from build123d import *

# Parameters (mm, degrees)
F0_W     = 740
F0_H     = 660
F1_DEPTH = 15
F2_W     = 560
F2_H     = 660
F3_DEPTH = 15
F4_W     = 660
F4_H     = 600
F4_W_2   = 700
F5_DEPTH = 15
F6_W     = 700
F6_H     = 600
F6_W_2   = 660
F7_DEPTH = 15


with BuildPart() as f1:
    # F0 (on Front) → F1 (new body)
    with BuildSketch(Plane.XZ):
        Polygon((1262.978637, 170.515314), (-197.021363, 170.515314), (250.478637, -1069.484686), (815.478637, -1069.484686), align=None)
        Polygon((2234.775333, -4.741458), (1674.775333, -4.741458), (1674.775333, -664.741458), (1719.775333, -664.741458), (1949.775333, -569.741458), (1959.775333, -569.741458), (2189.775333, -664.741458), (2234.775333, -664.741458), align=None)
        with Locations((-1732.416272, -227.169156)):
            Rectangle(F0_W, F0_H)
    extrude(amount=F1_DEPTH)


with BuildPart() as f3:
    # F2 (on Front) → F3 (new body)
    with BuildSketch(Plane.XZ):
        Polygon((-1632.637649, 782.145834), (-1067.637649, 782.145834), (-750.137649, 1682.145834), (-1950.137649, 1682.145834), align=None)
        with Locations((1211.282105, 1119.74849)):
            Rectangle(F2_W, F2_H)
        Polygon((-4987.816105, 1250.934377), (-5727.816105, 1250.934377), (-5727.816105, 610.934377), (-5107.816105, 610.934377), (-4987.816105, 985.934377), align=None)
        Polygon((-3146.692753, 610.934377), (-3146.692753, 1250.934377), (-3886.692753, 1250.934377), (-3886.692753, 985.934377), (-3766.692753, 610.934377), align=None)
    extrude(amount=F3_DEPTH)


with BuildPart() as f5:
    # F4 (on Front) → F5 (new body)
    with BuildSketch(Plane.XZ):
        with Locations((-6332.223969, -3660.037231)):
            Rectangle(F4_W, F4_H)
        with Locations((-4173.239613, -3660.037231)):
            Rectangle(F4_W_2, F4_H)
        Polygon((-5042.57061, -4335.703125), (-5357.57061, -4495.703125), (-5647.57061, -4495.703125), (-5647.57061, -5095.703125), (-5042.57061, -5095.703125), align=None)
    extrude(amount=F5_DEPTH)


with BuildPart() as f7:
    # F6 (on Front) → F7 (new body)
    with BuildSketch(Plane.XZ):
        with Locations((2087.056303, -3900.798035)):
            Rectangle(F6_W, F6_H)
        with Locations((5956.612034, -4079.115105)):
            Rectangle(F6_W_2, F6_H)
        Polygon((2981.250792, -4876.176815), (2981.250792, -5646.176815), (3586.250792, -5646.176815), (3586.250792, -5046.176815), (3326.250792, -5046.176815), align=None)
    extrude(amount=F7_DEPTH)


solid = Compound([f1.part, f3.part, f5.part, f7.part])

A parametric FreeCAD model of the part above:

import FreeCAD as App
import Part
import Sketcher
from FreeCAD import Vector

doc = App.newDocument("Part")
params = doc.addObject("Spreadsheet::Sheet", "Params")
for row, (alias, value) in enumerate([
    ("sketch1_width", "1460 mm"),
    ("sketch1_width2", "565 mm"),
    ("sketch1_width3", "560 mm"),
    ("sketch1_width4", "45 mm"),
    ("sketch1_width5", "10 mm"),
    ("pad1_length", "15 mm"),
    ("sketch2_width", "565 mm"),
    ("sketch2_width2", "1200 mm"),
    ("sketch2_width3", "560 mm"),
    ("sketch2_width4", "740 mm"),
    ("sketch2_width5", "620 mm"),
    ("pad2_length", "15 mm"),
    ("sketch3_width", "660 mm"),
    ("sketch3_width2", "700 mm"),
    ("sketch3_width3", "290 mm"),
    ("sketch3_width4", "605 mm"),
    ("sketch3_height", "600 mm"),
    ("pad3_length", "15 mm"),
    ("sketch4_width", "700 mm"),
    ("sketch4_width2", "660 mm"),
    ("sketch4_width3", "605 mm"),
    ("sketch4_width4", "260 mm"),
    ("sketch4_height", "600 mm"),
    ("pad4_length", "15 mm"),
], start=1):
    params.set(f"A{row}", alias)
    params.set(f"B{row}", "=" + value)
    params.setAlias(f"B{row}", alias)

body = doc.addObject("PartDesign::Body", "Body")
body.AllowCompound = True

# Sketch on XZ plane
sketch1 = doc.addObject("Sketcher::SketchObject", "Sketch")
body.addObject(sketch1)
sketch1.AttachmentSupport = (doc.XZ_Plane, [""])
sketch1.MapMode = "FlatFace"
sketch1.addGeometry([
    Part.LineSegment(Vector(1263, 171, 0), Vector(-197, 171, 0)),  # 0
    Part.LineSegment(Vector(-197, 171, 0), Vector(250, -1069, 0)),  # 1
    Part.LineSegment(Vector(250, -1069, 0), Vector(815, -1069, 0)),  # 2
    Part.LineSegment(Vector(815, -1069, 0), Vector(1263, 171, 0)),  # 3
    Part.LineSegment(Vector(2235, -5, 0), Vector(1675, -5, 0)),  # 4
    Part.LineSegment(Vector(1675, -5, 0), Vector(1675, -665, 0)),  # 5
    Part.LineSegment(Vector(1675, -665, 0), Vector(1720, -665, 0)),  # 6
    Part.LineSegment(Vector(1720, -665, 0), Vector(1950, -570, 0)),  # 7
    Part.LineSegment(Vector(1950, -570, 0), Vector(1960, -570, 0)),  # 8
    Part.LineSegment(Vector(1960, -570, 0), Vector(2190, -665, 0)),  # 9
    Part.LineSegment(Vector(2190, -665, 0), Vector(2235, -665, 0)),  # 10
    Part.LineSegment(Vector(2235, -665, 0), Vector(2235, -5, 0)),  # 11
    Part.LineSegment(Vector(-2102, 103, 0), Vector(-2102, -557, 0)),  # 12
    Part.LineSegment(Vector(-2102, -557, 0), Vector(-1362, -557, 0)),  # 13
    Part.LineSegment(Vector(-1362, -557, 0), Vector(-1362, 103, 0)),  # 14
    Part.LineSegment(Vector(-1362, 103, 0), Vector(-2102, 103, 0)),  # 15
], False)
sketch1.addConstraint([
    Sketcher.Constraint("Coincident", 0, 2, 1, 1),
    Sketcher.Constraint("Coincident", 1, 2, 2, 1),
    Sketcher.Constraint("Coincident", 2, 2, 3, 1),
    Sketcher.Constraint("Coincident", 3, 2, 0, 1),
    Sketcher.Constraint("Coincident", 4, 2, 5, 1),
    Sketcher.Constraint("Coincident", 5, 2, 6, 1),
    Sketcher.Constraint("Coincident", 6, 2, 7, 1),
    Sketcher.Constraint("Coincident", 7, 2, 8, 1),
    Sketcher.Constraint("Coincident", 8, 2, 9, 1),
    Sketcher.Constraint("Coincident", 9, 2, 10, 1),
    Sketcher.Constraint("Coincident", 10, 2, 11, 1),
    Sketcher.Constraint("Coincident", 11, 2, 4, 1),
    Sketcher.Constraint("Coincident", 12, 2, 13, 1),
    Sketcher.Constraint("Coincident", 13, 2, 14, 1),
    Sketcher.Constraint("Coincident", 14, 2, 15, 1),
    Sketcher.Constraint("Coincident", 15, 2, 12, 1),
    Sketcher.Constraint("Horizontal", 0),
    Sketcher.Constraint("Horizontal", 2),
    Sketcher.Constraint("Horizontal", 4),
    Sketcher.Constraint("Vertical", 5),
    Sketcher.Constraint("Horizontal", 6),
    Sketcher.Constraint("Horizontal", 8),
    Sketcher.Constraint("Horizontal", 10),
    Sketcher.Constraint("Vertical", 11),
    Sketcher.Constraint("Vertical", 12),
    Sketcher.Constraint("Horizontal", 13),
    Sketcher.Constraint("Vertical", 14),
    Sketcher.Constraint("Horizontal", 15),
    Sketcher.Constraint("Horizontal", 6, 2, 9, 2),
    Sketcher.Constraint("Equal", 6, 10),
    Sketcher.Constraint("Equal", 11, 12),
    Sketcher.Constraint("Equal", 1, 3),
    Sketcher.Constraint("Equal", 7, 9),
    Sketcher.Constraint("DistanceX", 0, 2, 0, 1, 1460.0),
    Sketcher.Constraint("DistanceX", 2, 1, 2, 2, 565.0),
    Sketcher.Constraint("DistanceX", 4, 2, 4, 1, 560.0),
    Sketcher.Constraint("DistanceX", 6, 1, 6, 2, 45.0),
    Sketcher.Constraint("DistanceX", 8, 1, 8, 2, 10.0),
    Sketcher.Constraint("DistanceX", 13, 1, 13, 2, 740.0),
    Sketcher.Constraint("DistanceY", 5, 2, 5, 1, 660.0),
    Sketcher.Constraint("DistanceY", 1, 2, 0, 2, 1240.0),
    Sketcher.Constraint("DistanceY", 6, 2, 7, 2, 95.0),
    Sketcher.Constraint("DistanceY", 5, 2, 12, 2, 107.572302),
    Sketcher.Constraint("DistanceY", 5, 2, -1, 1, 664.741458),
    Sketcher.Constraint("DistanceX", 12, 2, -1, 1, 2102.416272),
    Sketcher.Constraint("DistanceY", 4, 2, 3, 2, 175.256772),
    Sketcher.Constraint("DistanceX", 12, 2, 0, 2, 1905.394909),
    Sketcher.Constraint("DistanceX", -1, 1, 4, 2, 1674.775333),
])
sketch1.setExpression("Constraints[33]", "Params.sketch1_width")
sketch1.setExpression("Constraints[34]", "Params.sketch1_width2")
sketch1.setExpression("Constraints[35]", "Params.sketch1_width3")
sketch1.setExpression("Constraints[36]", "Params.sketch1_width4")
sketch1.setExpression("Constraints[37]", "Params.sketch1_width5")
pad1 = doc.addObject("PartDesign::Pad", "Pad")
body.addObject(pad1)
pad1.Profile = sketch1
pad1.setExpression("Length", "Params.pad1_length")
body2 = doc.addObject("PartDesign::Body", "Body001")
body2.AllowCompound = True

# Sketch on XZ plane
sketch2 = doc.addObject("Sketcher::SketchObject", "Sketch001")
body2.addObject(sketch2)
sketch2.AttachmentSupport = (doc.getObject("XZ_Plane001"), [""])
sketch2.MapMode = "FlatFace"
sketch2.addGeometry([
    Part.LineSegment(Vector(-1633, 782, 0), Vector(-1068, 782, 0)),  # 0
    Part.LineSegment(Vector(-1068, 782, 0), Vector(-750, 1682, 0)),  # 1
    Part.LineSegment(Vector(-750, 1682, 0), Vector(-1950, 1682, 0)),  # 2
    Part.LineSegment(Vector(-1950, 1682, 0), Vector(-1633, 782, 0)),  # 3
    Part.LineSegment(Vector(931, 1450, 0), Vector(931, 790, 0)),  # 4
    Part.LineSegment(Vector(931, 790, 0), Vector(1491, 790, 0)),  # 5
    Part.LineSegment(Vector(1491, 790, 0), Vector(1491, 1450, 0)),  # 6
    Part.LineSegment(Vector(1491, 1450, 0), Vector(931, 1450, 0)),  # 7
    Part.LineSegment(Vector(-4988, 1251, 0), Vector(-5728, 1251, 0)),  # 8
    Part.LineSegment(Vector(-5728, 1251, 0), Vector(-5728, 611, 0)),  # 9
    Part.LineSegment(Vector(-5728, 611, 0), Vector(-5108, 611, 0)),  # 10
    Part.LineSegment(Vector(-5108, 611, 0), Vector(-4988, 986, 0)),  # 11
    Part.LineSegment(Vector(-4988, 986, 0), Vector(-4988, 1251, 0)),  # 12
    Part.LineSegment(Vector(-3147, 611, 0), Vector(-3147, 1251, 0)),  # 13
    Part.LineSegment(Vector(-3147, 1251, 0), Vector(-3887, 1251, 0)),  # 14
    Part.LineSegment(Vector(-3887, 1251, 0), Vector(-3887, 986, 0)),  # 15
    Part.LineSegment(Vector(-3887, 986, 0), Vector(-3767, 611, 0)),  # 16
    Part.LineSegment(Vector(-3767, 611, 0), Vector(-3147, 611, 0)),  # 17
], False)
sketch2.addConstraint([
    Sketcher.Constraint("Coincident", 0, 2, 1, 1),
    Sketcher.Constraint("Coincident", 1, 2, 2, 1),
    Sketcher.Constraint("Coincident", 2, 2, 3, 1),
    Sketcher.Constraint("Coincident", 3, 2, 0, 1),
    Sketcher.Constraint("Coincident", 4, 2, 5, 1),
    Sketcher.Constraint("Coincident", 5, 2, 6, 1),
    Sketcher.Constraint("Coincident", 6, 2, 7, 1),
    Sketcher.Constraint("Coincident", 7, 2, 4, 1),
    Sketcher.Constraint("Coincident", 8, 2, 9, 1),
    Sketcher.Constraint("Coincident", 9, 2, 10, 1),
    Sketcher.Constraint("Coincident", 10, 2, 11, 1),
    Sketcher.Constraint("Coincident", 11, 2, 12, 1),
    Sketcher.Constraint("Coincident", 12, 2, 8, 1),
    Sketcher.Constraint("Coincident", 13, 2, 14, 1),
    Sketcher.Constraint("Coincident", 14, 2, 15, 1),
    Sketcher.Constraint("Coincident", 15, 2, 16, 1),
    Sketcher.Constraint("Coincident", 16, 2, 17, 1),
    Sketcher.Constraint("Coincident", 17, 2, 13, 1),
    Sketcher.Constraint("Horizontal", 0),
    Sketcher.Constraint("Horizontal", 2),
    Sketcher.Constraint("Vertical", 4),
    Sketcher.Constraint("Horizontal", 5),
    Sketcher.Constraint("Vertical", 6),
    Sketcher.Constraint("Horizontal", 7),
    Sketcher.Constraint("Horizontal", 8),
    Sketcher.Constraint("Vertical", 9),
    Sketcher.Constraint("Horizontal", 10),
    Sketcher.Constraint("Vertical", 12),
    Sketcher.Constraint("Vertical", 13),
    Sketcher.Constraint("Horizontal", 14),
    Sketcher.Constraint("Vertical", 15),
    Sketcher.Constraint("Horizontal", 17),
    Sketcher.Constraint("Horizontal", 12, 2, 13, 2),
    Sketcher.Constraint("Horizontal", 11, 2, 15, 2),
    Sketcher.Constraint("Horizontal", 10, 2, 16, 2),
    Sketcher.Constraint("Equal", 8, 14),
    Sketcher.Constraint("Equal", 10, 17),
    Sketcher.Constraint("Equal", 1, 3),
    Sketcher.Constraint("DistanceX", 0, 1, 0, 2, 565.0),
    Sketcher.Constraint("DistanceX", 2, 2, 2, 1, 1200.0),
    Sketcher.Constraint("DistanceX", 5, 1, 5, 2, 560.0),
    Sketcher.Constraint("DistanceX", 8, 2, 8, 1, 740.0),
    Sketcher.Constraint("DistanceX", 10, 1, 10, 2, 620.0),
    Sketcher.Constraint("DistanceY", 4, 2, 4, 1, 660.0),
    Sketcher.Constraint("DistanceY", 9, 2, 9, 1, 640.0),
    Sketcher.Constraint("DistanceY", 12, 1, 12, 2, 265.0),
    Sketcher.Constraint("DistanceY", 0, 2, 1, 2, 900.0),
    Sketcher.Constraint("DistanceX", 0, 2, -1, 1, 1067.637649),
    Sketcher.Constraint("DistanceY", -1, 1, 4, 2, 789.74849),
    Sketcher.Constraint("DistanceX", 8, 2, 7, 2, 6659.09821),
    Sketcher.Constraint("DistanceX", 12, 2, 13, 2, 1841.123352),
    Sketcher.Constraint("DistanceY", -1, 1, 0, 2, 782.145834),
    Sketcher.Constraint("DistanceX", -1, 1, 4, 2, 931.282105),
    Sketcher.Constraint("DistanceY", -1, 1, 8, 2, 1250.934377),
])
sketch2.setExpression("Constraints[38]", "Params.sketch2_width")
sketch2.setExpression("Constraints[39]", "Params.sketch2_width2")
sketch2.setExpression("Constraints[40]", "Params.sketch2_width3")
sketch2.setExpression("Constraints[41]", "Params.sketch2_width4")
sketch2.setExpression("Constraints[42]", "Params.sketch2_width5")
pad2 = doc.addObject("PartDesign::Pad", "Pad001")
body2.addObject(pad2)
pad2.Profile = sketch2
pad2.setExpression("Length", "Params.pad2_length")
body3 = doc.addObject("PartDesign::Body", "Body002")
body3.AllowCompound = True

# Sketch on XZ plane
sketch3 = doc.addObject("Sketcher::SketchObject", "Sketch002")
body3.addObject(sketch3)
sketch3.AttachmentSupport = (doc.getObject("XZ_Plane002"), [""])
sketch3.MapMode = "FlatFace"
sketch3.addGeometry([
    Part.LineSegment(Vector(-6662, -3360, 0), Vector(-6662, -3960, 0)),  # 0
    Part.LineSegment(Vector(-6662, -3960, 0), Vector(-6002, -3960, 0)),  # 1
    Part.LineSegment(Vector(-6002, -3960, 0), Vector(-6002, -3360, 0)),  # 2
    Part.LineSegment(Vector(-6002, -3360, 0), Vector(-6662, -3360, 0)),  # 3
    Part.LineSegment(Vector(-4523, -3360, 0), Vector(-4523, -3960, 0)),  # 4
    Part.LineSegment(Vector(-4523, -3960, 0), Vector(-3823, -3960, 0)),  # 5
    Part.LineSegment(Vector(-3823, -3960, 0), Vector(-3823, -3360, 0)),  # 6
    Part.LineSegment(Vector(-3823, -3360, 0), Vector(-4523, -3360, 0)),  # 7
    Part.LineSegment(Vector(-5043, -4336, 0), Vector(-5358, -4496, 0)),  # 8
    Part.LineSegment(Vector(-5358, -4496, 0), Vector(-5648, -4496, 0)),  # 9
    Part.LineSegment(Vector(-5648, -4496, 0), Vector(-5648, -5096, 0)),  # 10
    Part.LineSegment(Vector(-5648, -5096, 0), Vector(-5043, -5096, 0)),  # 11
    Part.LineSegment(Vector(-5043, -5096, 0), Vector(-5043, -4336, 0)),  # 12
], False)
sketch3.addConstraint([
    Sketcher.Constraint("Coincident", 0, 2, 1, 1),
    Sketcher.Constraint("Coincident", 1, 2, 2, 1),
    Sketcher.Constraint("Coincident", 2, 2, 3, 1),
    Sketcher.Constraint("Coincident", 3, 2, 0, 1),
    Sketcher.Constraint("Coincident", 4, 2, 5, 1),
    Sketcher.Constraint("Coincident", 5, 2, 6, 1),
    Sketcher.Constraint("Coincident", 6, 2, 7, 1),
    Sketcher.Constraint("Coincident", 7, 2, 4, 1),
    Sketcher.Constraint("Coincident", 8, 2, 9, 1),
    Sketcher.Constraint("Coincident", 9, 2, 10, 1),
    Sketcher.Constraint("Coincident", 10, 2, 11, 1),
    Sketcher.Constraint("Coincident", 11, 2, 12, 1),
    Sketcher.Constraint("Coincident", 12, 2, 8, 1),
    Sketcher.Constraint("Vertical", 0),
    Sketcher.Constraint("Horizontal", 1),
    Sketcher.Constraint("Vertical", 2),
    Sketcher.Constraint("Horizontal", 3),
    Sketcher.Constraint("Vertical", 4),
    Sketcher.Constraint("Horizontal", 5),
    Sketcher.Constraint("Vertical", 6),
    Sketcher.Constraint("Horizontal", 7),
    Sketcher.Constraint("Horizontal", 9),
    Sketcher.Constraint("Vertical", 10),
    Sketcher.Constraint("Horizontal", 11),
    Sketcher.Constraint("Vertical", 12),
    Sketcher.Constraint("Horizontal", 1, 2, 4, 2),
    Sketcher.Constraint("Horizontal", 3, 2, 6, 2),
    Sketcher.Constraint("Equal", 6, 10),
    Sketcher.Constraint("DistanceX", 1, 1, 1, 2, 660.0),
    Sketcher.Constraint("DistanceX", 5, 1, 5, 2, 700.0),
    Sketcher.Constraint("DistanceX", 9, 2, 9, 1, 290.0),
    Sketcher.Constraint("DistanceX", 11, 1, 11, 2, 605.0),
    Sketcher.Constraint("DistanceY", 0, 2, 0, 1, 600.0),
    Sketcher.Constraint("DistanceY", 12, 1, 12, 2, 760.0),
    Sketcher.Constraint("DistanceX", 0, 2, -1, 1, 6662.223969),
    Sketcher.Constraint("DistanceY", 0, 2, -1, 1, 3960.037231),
    Sketcher.Constraint("DistanceX", 8, 2, -1, 1, 5357.57061),
    Sketcher.Constraint("DistanceX", 4, 2, -1, 1, 4523.239613),
    Sketcher.Constraint("DistanceY", 8, 2, -1, 1, 4495.703125),
])
sketch3.setExpression("Constraints[28]", "Params.sketch3_width")
sketch3.setExpression("Constraints[29]", "Params.sketch3_width2")
sketch3.setExpression("Constraints[30]", "Params.sketch3_width3")
sketch3.setExpression("Constraints[31]", "Params.sketch3_width4")
sketch3.setExpression("Constraints[32]", "Params.sketch3_height")
pad3 = doc.addObject("PartDesign::Pad", "Pad002")
body3.addObject(pad3)
pad3.Profile = sketch3
pad3.setExpression("Length", "Params.pad3_length")
body4 = doc.addObject("PartDesign::Body", "Body003")
body4.AllowCompound = True

# Sketch on XZ plane
sketch4 = doc.addObject("Sketcher::SketchObject", "Sketch003")
body4.addObject(sketch4)
sketch4.AttachmentSupport = (doc.getObject("XZ_Plane003"), [""])
sketch4.MapMode = "FlatFace"
sketch4.addGeometry([
    Part.LineSegment(Vector(1737, -3601, 0), Vector(1737, -4201, 0)),  # 0
    Part.LineSegment(Vector(1737, -4201, 0), Vector(2437, -4201, 0)),  # 1
    Part.LineSegment(Vector(2437, -4201, 0), Vector(2437, -3601, 0)),  # 2
    Part.LineSegment(Vector(2437, -3601, 0), Vector(1737, -3601, 0)),  # 3
    Part.LineSegment(Vector(5627, -3779, 0), Vector(5627, -4379, 0)),  # 4
    Part.LineSegment(Vector(5627, -4379, 0), Vector(6287, -4379, 0)),  # 5
    Part.LineSegment(Vector(6287, -4379, 0), Vector(6287, -3779, 0)),  # 6
    Part.LineSegment(Vector(6287, -3779, 0), Vector(5627, -3779, 0)),  # 7
    Part.LineSegment(Vector(2981, -4876, 0), Vector(2981, -5646, 0)),  # 8
    Part.LineSegment(Vector(2981, -5646, 0), Vector(3586, -5646, 0)),  # 9
    Part.LineSegment(Vector(3586, -5646, 0), Vector(3586, -5046, 0)),  # 10
    Part.LineSegment(Vector(3586, -5046, 0), Vector(3326, -5046, 0)),  # 11
    Part.LineSegment(Vector(3326, -5046, 0), Vector(2981, -4876, 0)),  # 12
], False)
sketch4.addConstraint([
    Sketcher.Constraint("Coincident", 0, 2, 1, 1),
    Sketcher.Constraint("Coincident", 1, 2, 2, 1),
    Sketcher.Constraint("Coincident", 2, 2, 3, 1),
    Sketcher.Constraint("Coincident", 3, 2, 0, 1),
    Sketcher.Constraint("Coincident", 4, 2, 5, 1),
    Sketcher.Constraint("Coincident", 5, 2, 6, 1),
    Sketcher.Constraint("Coincident", 6, 2, 7, 1),
    Sketcher.Constraint("Coincident", 7, 2, 4, 1),
    Sketcher.Constraint("Coincident", 8, 2, 9, 1),
    Sketcher.Constraint("Coincident", 9, 2, 10, 1),
    Sketcher.Constraint("Coincident", 10, 2, 11, 1),
    Sketcher.Constraint("Coincident", 11, 2, 12, 1),
    Sketcher.Constraint("Coincident", 12, 2, 8, 1),
    Sketcher.Constraint("Vertical", 0),
    Sketcher.Constraint("Horizontal", 1),
    Sketcher.Constraint("Vertical", 2),
    Sketcher.Constraint("Horizontal", 3),
    Sketcher.Constraint("Vertical", 4),
    Sketcher.Constraint("Horizontal", 5),
    Sketcher.Constraint("Vertical", 6),
    Sketcher.Constraint("Horizontal", 7),
    Sketcher.Constraint("Vertical", 8),
    Sketcher.Constraint("Horizontal", 9),
    Sketcher.Constraint("Vertical", 10),
    Sketcher.Constraint("Horizontal", 11),
    Sketcher.Constraint("Equal", 2, 4),
    Sketcher.Constraint("Equal", 6, 10),
    Sketcher.Constraint("DistanceX", 1, 1, 1, 2, 700.0),
    Sketcher.Constraint("DistanceX", 5, 1, 5, 2, 660.0),
    Sketcher.Constraint("DistanceX", 9, 1, 9, 2, 605.0),
    Sketcher.Constraint("DistanceX", 11, 2, 11, 1, 260.0),
    Sketcher.Constraint("DistanceY", 0, 2, 0, 1, 600.0),
    Sketcher.Constraint("DistanceY", 8, 2, 8, 1, 770.0),
    Sketcher.Constraint("DistanceX", -1, 1, 8, 2, 2981.250792),
    Sketcher.Constraint("DistanceX", 1, 2, 4, 2, 3189.555731),
    Sketcher.Constraint("DistanceY", 4, 2, 1, 2, 178.31707),
    Sketcher.Constraint("DistanceX", 1, 2, 8, 2, 544.194489),
    Sketcher.Constraint("DistanceY", 8, 2, 1, 2, 1445.37878),
    Sketcher.Constraint("DistanceY", 0, 2, -1, 1, 4200.798035),
])
sketch4.setExpression("Constraints[27]", "Params.sketch4_width")
sketch4.setExpression("Constraints[28]", "Params.sketch4_width2")
sketch4.setExpression("Constraints[29]", "Params.sketch4_width3")
sketch4.setExpression("Constraints[30]", "Params.sketch4_width4")
sketch4.setExpression("Constraints[31]", "Params.sketch4_height")
pad4 = doc.addObject("PartDesign::Pad", "Pad003")
body4.addObject(pad4)
pad4.Profile = sketch4
pad4.setExpression("Length", "Params.pad4_length")

doc.recompute()
